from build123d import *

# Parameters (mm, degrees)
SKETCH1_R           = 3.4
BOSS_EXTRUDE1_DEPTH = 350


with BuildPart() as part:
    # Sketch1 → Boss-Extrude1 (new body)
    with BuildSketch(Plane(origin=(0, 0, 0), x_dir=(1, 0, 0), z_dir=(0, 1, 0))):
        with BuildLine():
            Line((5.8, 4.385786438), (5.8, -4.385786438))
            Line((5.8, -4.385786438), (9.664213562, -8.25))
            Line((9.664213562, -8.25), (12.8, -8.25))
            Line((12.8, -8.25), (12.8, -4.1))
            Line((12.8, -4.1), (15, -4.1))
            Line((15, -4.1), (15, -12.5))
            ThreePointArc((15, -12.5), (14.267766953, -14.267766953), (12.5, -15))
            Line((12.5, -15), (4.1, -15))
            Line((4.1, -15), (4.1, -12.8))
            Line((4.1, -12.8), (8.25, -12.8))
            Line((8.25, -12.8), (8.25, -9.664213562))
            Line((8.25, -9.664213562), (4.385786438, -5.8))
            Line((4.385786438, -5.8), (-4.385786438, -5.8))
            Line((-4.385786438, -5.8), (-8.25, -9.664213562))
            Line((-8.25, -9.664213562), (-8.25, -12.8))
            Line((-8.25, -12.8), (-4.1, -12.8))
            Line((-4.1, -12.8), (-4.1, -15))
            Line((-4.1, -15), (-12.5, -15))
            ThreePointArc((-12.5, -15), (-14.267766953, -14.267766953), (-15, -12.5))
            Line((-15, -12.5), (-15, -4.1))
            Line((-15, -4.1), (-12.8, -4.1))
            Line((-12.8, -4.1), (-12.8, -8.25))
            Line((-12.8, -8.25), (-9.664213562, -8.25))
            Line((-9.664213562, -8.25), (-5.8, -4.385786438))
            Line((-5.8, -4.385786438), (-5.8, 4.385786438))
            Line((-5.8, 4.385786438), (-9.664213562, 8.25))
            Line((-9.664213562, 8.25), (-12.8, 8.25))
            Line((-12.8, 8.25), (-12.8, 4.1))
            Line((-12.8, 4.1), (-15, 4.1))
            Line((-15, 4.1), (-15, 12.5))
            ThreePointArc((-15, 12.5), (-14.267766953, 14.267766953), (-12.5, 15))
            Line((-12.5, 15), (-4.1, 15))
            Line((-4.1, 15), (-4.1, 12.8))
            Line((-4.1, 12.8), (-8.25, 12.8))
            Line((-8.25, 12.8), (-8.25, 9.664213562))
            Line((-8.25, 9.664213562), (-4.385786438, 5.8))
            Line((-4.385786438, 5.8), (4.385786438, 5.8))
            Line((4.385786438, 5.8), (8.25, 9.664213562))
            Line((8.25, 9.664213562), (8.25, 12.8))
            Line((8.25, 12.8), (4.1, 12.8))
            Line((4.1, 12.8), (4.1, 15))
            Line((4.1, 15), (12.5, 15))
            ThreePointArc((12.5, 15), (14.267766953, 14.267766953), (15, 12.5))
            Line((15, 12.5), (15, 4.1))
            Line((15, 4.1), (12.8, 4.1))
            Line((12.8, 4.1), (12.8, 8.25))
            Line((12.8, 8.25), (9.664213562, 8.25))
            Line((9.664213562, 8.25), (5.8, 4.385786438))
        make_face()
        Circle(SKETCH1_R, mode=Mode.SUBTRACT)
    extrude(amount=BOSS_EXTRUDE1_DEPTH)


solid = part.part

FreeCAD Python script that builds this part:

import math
import FreeCAD as App
import Part
import Sketcher
from FreeCAD import Vector

doc = App.newDocument("Part")
body = doc.addObject("PartDesign::Body", "Body")

# Sketch on XZ plane
sketch1 = body.newObject("Sketcher::SketchObject", "Sketch")
sketch1.AttachmentSupport = (doc.getObject("XZ_Plane"), [""])
sketch1.MapMode = "FlatFace"
sketch1.addGeometry([
    Part.LineSegment(Vector(5.8, 4.4, 0), Vector(5.8, -4.4, 0)),  # 0
    Part.LineSegment(Vector(5.8, -4.4, 0), Vector(9.7, -8.2, 0)),  # 1
    Part.LineSegment(Vector(9.7, -8.2, 0), Vector(12.8, -8.2, 0)),  # 2
    Part.LineSegment(Vector(12.8, -8.2, 0), Vector(12.8, -4.1, 0)),  # 3
    Part.LineSegment(Vector(12.8, -4.1, 0), Vector(15, -4.1, 0)),  # 4
    Part.LineSegment(Vector(15, -4.1, 0), Vector(15, -12.5, 0)),  # 5
    Part.ArcOfCircle(Part.Circle(Vector(12.5, -12.5, 0), Vector(0, 0, 1), 2.5), math.radians(-90), math.radians(0)),  # 6
    Part.LineSegment(Vector(12.5, -15, 0), Vector(4.1, -15, 0)),  # 7
    Part.LineSegment(Vector(4.1, -15, 0), Vector(4.1, -12.8, 0)),  # 8
    Part.LineSegment(Vector(4.1, -12.8, 0), Vector(8.2, -12.8, 0)),  # 9
    Part.LineSegment(Vector(8.2, -12.8, 0), Vector(8.2, -9.7, 0)),  # 10
    Part.LineSegment(Vector(8.2, -9.7, 0), Vector(4.4, -5.8, 0)),  # 11
    Part.LineSegment(Vector(4.4, -5.8, 0), Vector(-4.4, -5.8, 0)),  # 12
    Part.LineSegment(Vector(-4.4, -5.8, 0), Vector(-8.2, -9.7, 0)),  # 13
    Part.LineSegment(Vector(-8.2, -9.7, 0), Vector(-8.2, -12.8, 0)),  # 14
    Part.LineSegment(Vector(-8.2, -12.8, 0), Vector(-4.1, -12.8, 0)),  # 15
    Part.LineSegment(Vector(-4.1, -12.8, 0), Vector(-4.1, -15, 0)),  # 16
    Part.LineSegment(Vector(-4.1, -15, 0), Vector(-12.5, -15, 0)),  # 17
    Part.ArcOfCircle(Part.Circle(Vector(-12.5, -12.5, 0), Vector(0, 0, 1), 2.5), math.radians(180), math.radians(270)),  # 18
    Part.LineSegment(Vector(-15, -12.5, 0), Vector(-15, -4.1, 0)),  # 19
    Part.LineSegment(Vector(-15, -4.1, 0), Vector(-12.8, -4.1, 0)),  # 20
    Part.LineSegment(Vector(-12.8, -4.1, 0), Vector(-12.8, -8.2, 0)),  # 21
    Part.LineSegment(Vector(-12.8, -8.2, 0), Vector(-9.7, -8.2, 0)),  # 22
    Part.LineSegment(Vector(-9.7, -8.2, 0), Vector(-5.8, -4.4, 0)),  # 23
    Part.LineSegment(Vector(-5.8, -4.4, 0), Vector(-5.8, 4.4, 0)),  # 24
    Part.LineSegment(Vector(-5.8, 4.4, 0), Vector(-9.7, 8.2, 0)),  # 25
    Part.LineSegment(Vector(-9.7, 8.2, 0), Vector(-12.8, 8.2, 0)),  # 26
    Part.LineSegment(Vector(-12.8, 8.2, 0), Vector(-12.8, 4.1, 0)),  # 27
    Part.LineSegment(Vector(-12.8, 4.1, 0), Vector(-15, 4.1, 0)),  # 28
    Part.LineSegment(Vector(-15, 4.1, 0), Vector(-15, 12.5, 0)),  # 29
    Part.ArcOfCircle(Part.Circle(Vector(-12.5, 12.5, 0), Vector(0, 0, 1), 2.5), math.radians(90), math.radians(180)),  # 30
    Part.LineSegment(Vector(-12.5, 15, 0), Vector(-4.1, 15, 0)),  # 31
    Part.LineSegment(Vector(-4.1, 15, 0), Vector(-4.1, 12.8, 0)),  # 32
    Part.LineSegment(Vector(-4.1, 12.8, 0), Vector(-8.2, 12.8, 0)),  # 33
    Part.LineSegment(Vector(-8.2, 12.8, 0), Vector(-8.2, 9.7, 0)),  # 34
    Part.LineSegment(Vector(-8.2, 9.7, 0), Vector(-4.4, 5.8, 0)),  # 35
    Part.LineSegment(Vector(-4.4, 5.8, 0), Vector(4.4, 5.8, 0)),  # 36
    Part.LineSegment(Vector(4.4, 5.8, 0), Vector(8.2, 9.7, 0)),  # 37
    Part.LineSegment(Vector(8.2, 9.7, 0), Vector(8.2, 12.8, 0)),  # 38
    Part.LineSegment(Vector(8.2, 12.8, 0), Vector(4.1, 12.8, 0)),  # 39
    Part.LineSegment(Vector(4.1, 12.8, 0), Vector(4.1, 15, 0)),  # 40
    Part.LineSegment(Vector(4.1, 15, 0), Vector(12.5, 15, 0)),  # 41
    Part.ArcOfCircle(Part.Circle(Vector(12.5, 12.5, 0), Vector(0, 0, 1), 2.5), math.radians(0), math.radians(90)),  # 42
    Part.LineSegment(Vector(15, 12.5, 0), Vector(15, 4.1, 0)),  # 43
    Part.LineSegment(Vector(15, 4.1, 0), Vector(12.8, 4.1, 0)),  # 44
    Part.LineSegment(Vector(12.8, 4.1, 0), Vector(12.8, 8.2, 0)),  # 45
    Part.LineSegment(Vector(12.8, 8.2, 0), Vector(9.7, 8.2, 0)),  # 46
    Part.LineSegment(Vector(9.7, 8.2, 0), Vector(5.8, 4.4, 0)),  # 47
    Part.Circle(Vector(0, 0, 0), Vector(0, 0, 1), 3.4),  # 48
], False)
sketch1.addConstraint([
    Sketcher.Constraint("Coincident", 0, 2, 1, 1),
    Sketcher.Constraint("Coincident", 1, 2, 2, 1),
    Sketcher.Constraint("Coincident", 2, 2, 3, 1),
    Sketcher.Constraint("Coincident", 3, 2, 4, 1),
    Sketcher.Constraint("Coincident", 4, 2, 5, 1),
    Sketcher.Constraint("Tangent", 5, 2, 6, 2),
    Sketcher.Constraint("Tangent", 6, 1, 7, 1),
    Sketcher.Constraint("Coincident", 7, 2, 8, 1),
    Sketcher.Constraint("Coincident", 8, 2, 9, 1),
    Sketcher.Constraint("Coincident", 9, 2, 10, 1),
    Sketcher.Constraint("Coincident", 10, 2, 11, 1),
    Sketcher.Constraint("Coincident", 11, 2, 12, 1),
    Sketcher.Constraint("Coincident", 12, 2, 13, 1),
    Sketcher.Constraint("Coincident", 13, 2, 14, 1),
    Sketcher.Constraint("Coincident", 14, 2, 15, 1),
    Sketcher.Constraint("Coincident", 15, 2, 16, 1),
    Sketcher.Constraint("Coincident", 16, 2, 17, 1),
    Sketcher.Constraint("Tangent", 17, 2, 18, 2),
    Sketcher.Constraint("Tangent", 18, 1, 19, 1),
    Sketcher.Constraint("Coincident", 19, 2, 20, 1),
    Sketcher.Constraint("Coincident", 20, 2, 21, 1),
    Sketcher.Constraint("Coincident", 21, 2, 22, 1),
    Sketcher.Constraint("Coincident", 22, 2, 23, 1),
    Sketcher.Constraint("Coincident", 23, 2, 24, 1),
    Sketcher.Constraint("Coincident", 24, 2, 25, 1),
    Sketcher.Constraint("Coincident", 25, 2, 26, 1),
    Sketcher.Constraint("Coincident", 26, 2, 27, 1),
    Sketcher.Constraint("Coincident", 27, 2, 28, 1),
    Sketcher.Constraint("Coincident", 28, 2, 29, 1),
    Sketcher.Constraint("Tangent", 29, 2, 30, 2),
    Sketcher.Constraint("Tangent", 30, 1, 31, 1),
    Sketcher.Constraint("Coincident", 31, 2, 32, 1),
    Sketcher.Constraint("Coincident", 32, 2, 33, 1),
    Sketcher.Constraint("Coincident", 33, 2, 34, 1),
    Sketcher.Constraint("Coincident", 34, 2, 35, 1),
    Sketcher.Constraint("Coincident", 35, 2, 36, 1),
    Sketcher.Constraint("Coincident", 36, 2, 37, 1),
    Sketcher.Constraint("Coincident", 37, 2, 38, 1),
    Sketcher.Constraint("Coincident", 38, 2, 39, 1),
    Sketcher.Constraint("Coincident", 39, 2, 40, 1),
    Sketcher.Constraint("Coincident", 40, 2, 41, 1),
    Sketcher.Constraint("Tangent", 41, 2, 42, 2),
    Sketcher.Constraint("Tangent", 42, 1, 43, 1),
    Sketcher.Constraint("Coincident", 43, 2, 44, 1),
    Sketcher.Constraint("Coincident", 44, 2, 45, 1),
    Sketcher.Constraint("Coincident", 45, 2, 46, 1),
    Sketcher.Constraint("Coincident", 46, 2, 47, 1),
    Sketcher.Constraint("Coincident", 47, 2, 0, 1),
    Sketcher.Constraint("Vertical", 0),
    Sketcher.Constraint("Horizontal", 2),
    Sketcher.Constraint("Vertical", 3),
    Sketcher.Constraint("Horizontal", 4),
    Sketcher.Constraint("Vertical", 5),
    Sketcher.Constraint("Horizontal", 7),
    Sketcher.Constraint("Vertical", 8),
    Sketcher.Constraint("Horizontal", 9),
    Sketcher.Constraint("Vertical", 10),
    Sketcher.Constraint("Horizontal", 12),
    Sketcher.Constraint("Vertical", 14),
    Sketcher.Constraint("Horizontal", 15),
    Sketcher.Constraint("Vertical", 16),
    Sketcher.Constraint("Horizontal", 17),
    Sketcher.Constraint("Vertical", 19),
    Sketcher.Constraint("Horizontal", 20),
    Sketcher.Constraint("Vertical", 21),
    Sketcher.Constraint("Horizontal", 22),
    Sketcher.Constraint("Vertical", 24),
    Sketcher.Constraint("Horizontal", 26),
    Sketcher.Constraint("Vertical", 27),
    Sketcher.Constraint("Horizontal", 28),
    Sketcher.Constraint("Vertical", 29),
    Sketcher.Constraint("Horizontal", 31),
    Sketcher.Constraint("Vertical", 32),
    Sketcher.Constraint("Horizontal", 33),
    Sketcher.Constraint("Vertical", 34),
    Sketcher.Constraint("Horizontal", 36),
    Sketcher.Constraint("Vertical", 38),
    Sketcher.Constraint("Horizontal", 39),
    Sketcher.Constraint("Vertical", 40),
    Sketcher.Constraint("Horizontal", 41),
    Sketcher.Constraint("Vertical", 43),
    Sketcher.Constraint("Horizontal", 44),
    Sketcher.Constraint("Vertical", 45),
    Sketcher.Constraint("Horizontal", 46),
    Sketcher.Constraint("Coincident", 48, 3, -1, 1),
    Sketcher.Constraint("Equal", 6, 18),
    Sketcher.Constraint("Equal", 18, 30),
    Sketcher.Constraint("Equal", 30, 42),
    Sketcher.Constraint("Symmetric", 6, 3, 30, 3, -1, 1),
    Sketcher.Constraint("Symmetric", 18, 3, 42, 3, -1, 1),
    Sketcher.Constraint("Symmetric", 0, 2, 24, 2, -1, 1),
    Sketcher.Constraint("Symmetric", 1, 2, 25, 2, -1, 1),
    Sketcher.Constraint("Symmetric", 3, 2, 27, 2, -1, 1),
    Sketcher.Constraint("Symmetric", 8, 2, 32, 2, -1, 1),
    Sketcher.Constraint("Symmetric", 10, 2, 34, 2, -1, 1),
    Sketcher.Constraint("Symmetric", 11, 2, 35, 2, -1, 1),
    Sketcher.Constraint("Symmetric", 13, 2, 37, 2, -1, 1),
    Sketcher.Constraint("Symmetric", 15, 2, 39, 2, -1, 1),
    Sketcher.Constraint("Symmetric", 20, 2, 44, 2, -1, 1),
    Sketcher.Constraint("Symmetric", 22, 2, 46, 2, -1, 1),
    Sketcher.Constraint("Symmetric", 6, 3, 18, 3, -2),
    Sketcher.Constraint("Symmetric", 10, 2, 13, 2, -2),
    Sketcher.Constraint("Symmetric", 8, 2, 15, 2, -2),
    Sketcher.Constraint("Symmetric", 3, 2, 20, 2, -2),
    Sketcher.Constraint("Symmetric", 1, 2, 22, 2, -2),
    Sketcher.Constraint("Parallel", 1, 11),
    Sketcher.Constraint("Perpendicular", 11, 13),
    Sketcher.Constraint("Parallel", 13, 23),
    Sketcher.Constraint("Perpendicular", 35, 37),
    Sketcher.Constraint("Parallel", 37, 47),
    Sketcher.Constraint("Horizontal", 0, 2, 23, 2),
    Sketcher.Constraint("Equal", 36, 0),
    Sketcher.Constraint("Equal", 39, 3),
    Sketcher.Constraint("Equal", 41, 5),
    Sketcher.Constraint("Equal", 44, 8),
    Sketcher.Constraint("Equal", 46, 10),
    Sketcher.Constraint("Equal", 1, 11),
    Sketcher.Constraint("Diameter", 48, 6.8),
    Sketcher.Constraint("Radius", 6, 2.5),
    Sketcher.Constraint("DistanceX", 4, 1, 4, 2, 2.2),
    Sketcher.Constraint("DistanceX", 7, 2, 7, 1, 8.4),
    Sketcher.Constraint("DistanceX", -1, 1, 4, 2, 15.0),
    Sketcher.Constraint("DistanceX", 0, 2, 2, 2, 7.0),
    Sketcher.Constraint("DistanceX", 9, 1, 9, 2, 4.15),
    Sketcher.Constraint("DistanceX", 2, 1, 2, 2, 3.135786),
])
pad1 = body.newObject("PartDesign::Pad", "Pad")
pad1.Profile = sketch1
pad1.Length = 350
pad1.Reversed = True

doc.recompute()
